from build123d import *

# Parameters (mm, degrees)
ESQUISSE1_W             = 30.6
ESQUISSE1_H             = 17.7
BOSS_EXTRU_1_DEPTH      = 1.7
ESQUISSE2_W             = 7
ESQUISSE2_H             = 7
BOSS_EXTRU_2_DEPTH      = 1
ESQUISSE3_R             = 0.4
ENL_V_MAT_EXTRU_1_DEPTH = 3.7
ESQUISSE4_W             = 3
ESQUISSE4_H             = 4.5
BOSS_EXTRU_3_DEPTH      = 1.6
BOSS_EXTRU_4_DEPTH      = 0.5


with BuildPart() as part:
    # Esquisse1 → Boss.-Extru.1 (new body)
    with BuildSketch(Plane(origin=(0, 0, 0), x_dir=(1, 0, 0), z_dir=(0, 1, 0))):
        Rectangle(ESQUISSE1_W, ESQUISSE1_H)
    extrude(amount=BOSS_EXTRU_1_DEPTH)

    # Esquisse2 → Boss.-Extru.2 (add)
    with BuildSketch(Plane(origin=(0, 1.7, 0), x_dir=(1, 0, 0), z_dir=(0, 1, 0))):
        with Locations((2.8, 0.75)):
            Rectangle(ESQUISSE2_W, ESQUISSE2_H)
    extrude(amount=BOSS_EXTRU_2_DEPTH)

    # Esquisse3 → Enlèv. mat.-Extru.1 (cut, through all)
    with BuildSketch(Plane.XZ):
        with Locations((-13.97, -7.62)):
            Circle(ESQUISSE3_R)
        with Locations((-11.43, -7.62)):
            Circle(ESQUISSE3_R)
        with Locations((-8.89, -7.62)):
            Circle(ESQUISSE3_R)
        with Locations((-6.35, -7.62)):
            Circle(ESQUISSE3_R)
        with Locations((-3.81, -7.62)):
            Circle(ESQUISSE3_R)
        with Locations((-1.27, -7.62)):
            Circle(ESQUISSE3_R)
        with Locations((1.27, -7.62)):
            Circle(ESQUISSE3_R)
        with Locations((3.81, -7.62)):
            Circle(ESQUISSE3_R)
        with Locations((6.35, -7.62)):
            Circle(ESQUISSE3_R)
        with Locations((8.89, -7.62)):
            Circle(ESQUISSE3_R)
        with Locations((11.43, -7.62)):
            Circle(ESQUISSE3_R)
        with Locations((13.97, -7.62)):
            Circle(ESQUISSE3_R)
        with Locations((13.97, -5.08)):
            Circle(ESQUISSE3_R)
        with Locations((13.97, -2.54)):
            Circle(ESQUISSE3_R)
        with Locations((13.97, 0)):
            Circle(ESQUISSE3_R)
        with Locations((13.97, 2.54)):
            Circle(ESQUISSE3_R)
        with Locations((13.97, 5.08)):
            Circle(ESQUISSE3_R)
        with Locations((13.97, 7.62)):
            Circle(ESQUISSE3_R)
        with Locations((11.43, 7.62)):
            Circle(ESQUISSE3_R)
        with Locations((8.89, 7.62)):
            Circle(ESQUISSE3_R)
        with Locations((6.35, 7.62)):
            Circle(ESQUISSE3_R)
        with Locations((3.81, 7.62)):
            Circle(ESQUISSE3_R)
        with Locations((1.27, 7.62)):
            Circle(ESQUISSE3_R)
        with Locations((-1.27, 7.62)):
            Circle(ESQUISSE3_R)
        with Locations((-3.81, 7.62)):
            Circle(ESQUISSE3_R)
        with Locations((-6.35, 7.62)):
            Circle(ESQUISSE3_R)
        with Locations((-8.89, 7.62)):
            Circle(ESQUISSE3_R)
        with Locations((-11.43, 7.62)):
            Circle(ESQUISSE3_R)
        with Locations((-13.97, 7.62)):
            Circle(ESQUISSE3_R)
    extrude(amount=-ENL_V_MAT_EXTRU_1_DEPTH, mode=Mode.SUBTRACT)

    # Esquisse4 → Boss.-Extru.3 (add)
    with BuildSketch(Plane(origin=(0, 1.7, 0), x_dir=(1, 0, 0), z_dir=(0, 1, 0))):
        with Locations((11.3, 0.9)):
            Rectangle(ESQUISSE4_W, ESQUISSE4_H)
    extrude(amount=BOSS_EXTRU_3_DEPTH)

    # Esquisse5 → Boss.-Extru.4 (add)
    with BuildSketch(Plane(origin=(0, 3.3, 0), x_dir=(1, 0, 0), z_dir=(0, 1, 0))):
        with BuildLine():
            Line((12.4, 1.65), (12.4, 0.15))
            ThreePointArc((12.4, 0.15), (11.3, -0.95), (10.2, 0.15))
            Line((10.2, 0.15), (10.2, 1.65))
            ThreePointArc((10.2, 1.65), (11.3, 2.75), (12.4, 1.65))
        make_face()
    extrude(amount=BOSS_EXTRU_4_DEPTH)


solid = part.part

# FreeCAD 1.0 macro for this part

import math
import FreeCAD as App
import Part
import Sketcher
from FreeCAD import Vector
Q = App.Units.Quantity


def add_polygon(sketch, points):
    """Adds a closed chain of lines whose ends are joined by coincident constraints."""
    first, n = sketch.GeometryCount, len(points)
    for a, b in zip(points, points[1:] + points[:1]):
        sketch.addGeometry(Part.LineSegment(App.Vector(*a, 0), App.Vector(*b, 0)), False)
    for i in range(n):
        sketch.addConstraint(Sketcher.Constraint("Coincident", first + i, 2, first + (i + 1) % n, 1))

doc = App.newDocument("Part")
body = doc.addObject("PartDesign::Body", "Body")

# Sketch on XZ plane
sketch1 = body.newObject("Sketcher::SketchObject", "Sketch")
sketch1.AttachmentSupport = (doc.getObject("XZ_Plane"), [""])
sketch1.MapMode = "FlatFace"
add_polygon(sketch1, [(-15.3, -8.85), (-15.3, 8.85), (15.3, 8.85), (15.3, -8.85)])  # lines 0-3
sketch1.addConstraint(Sketcher.Constraint("Vertical", 0))
sketch1.addConstraint(Sketcher.Constraint("Horizontal", 1))
sketch1.addConstraint(Sketcher.Constraint("Vertical", 2))
sketch1.addConstraint(Sketcher.Constraint("Horizontal", 3))
sketch1.addConstraint(Sketcher.Constraint("Symmetric", 0, 2, 2, 2, -1, 1))
sketch1.addConstraint(Sketcher.Constraint("DistanceX", 1, 1, 1, 2, Q("30.6 mm")))
sketch1.addConstraint(Sketcher.Constraint("DistanceY", 0, 1, 0, 2, Q("17.7 mm")))
pad1 = body.newObject("PartDesign::Pad", "Pad")
pad1.Profile = sketch1
pad1.Length = 1.7
pad1.Reversed = True

# Sketch on XZ plane
sketch2 = body.newObject("Sketcher::SketchObject", "Sketch001")
sketch2.AttachmentSupport = (doc.getObject("XZ_Plane"), [""])
sketch2.MapMode = "FlatFace"
sketch2.AttachmentOffset = App.Placement(Vector(0, 0, -1.7), App.Rotation())
add_polygon(sketch2, [(-0.7, -4.25), (-0.7, 2.75), (6.3, 2.75), (6.3, -4.25)])  # lines 0-3
sketch2.addConstraint(Sketcher.Constraint("Vertical", 0))
sketch2.addConstraint(Sketcher.Constraint("Horizontal", 1))
sketch2.addConstraint(Sketcher.Constraint("Vertical", 2))
sketch2.addConstraint(Sketcher.Constraint("Horizontal", 3))
sketch2.addConstraint(Sketcher.Constraint("Equal", 3, 0))
sketch2.addConstraint(Sketcher.Constraint("DistanceX", 1, 1, 1, 2, Q("7 mm")))
sketch2.addConstraint(Sketcher.Constraint("DistanceX", 0, 2, -1, 1, Q("0.7 mm")))
sketch2.addConstraint(Sketcher.Constraint("DistanceY", -1, 1, 0, 2, Q("2.75 mm")))
pad2 = body.newObject("PartDesign::Pad", "Pad001")
pad2.Profile = sketch2
pad2.Length = 1
pad2.Reversed = True

# Sketch on XZ plane
sketch3 = body.newObject("Sketcher::SketchObject", "Sketch002")
sketch3.AttachmentSupport = (doc.getObject("XZ_Plane"), [""])
sketch3.MapMode = "FlatFace"
sketch3.addGeometry(Part.Circle(Vector(-13.97, -7.62, 0), Vector(0, 0, 1), 0.4), False)
sketch3.addGeometry(Part.Circle(Vector(-11.43, -7.62, 0), Vector(0, 0, 1), 0.4), False)
sketch3.addGeometry(Part.Circle(Vector(-8.89, -7.62, 0), Vector(0, 0, 1), 0.4), False)
sketch3.addGeometry(Part.Circle(Vector(-6.35, -7.62, 0), Vector(0, 0, 1), 0.4), False)
sketch3.addGeometry(Part.Circle(Vector(-3.81, -7.62, 0), Vector(0, 0, 1), 0.4), False)
sketch3.addGeometry(Part.Circle(Vector(-1.27, -7.62, 0), Vector(0, 0, 1), 0.4), False)
sketch3.addGeometry(Part.Circle(Vector(1.27, -7.62, 0), Vector(0, 0, 1), 0.4), False)
sketch3.addGeometry(Part.Circle(Vector(3.81, -7.62, 0), Vector(0, 0, 1), 0.4), False)
sketch3.addGeometry(Part.Circle(Vector(6.35, -7.62, 0), Vector(0, 0, 1), 0.4), False)
sketch3.addGeometry(Part.Circle(Vector(8.89, -7.62, 0), Vector(0, 0, 1), 0.4), False)
sketch3.addGeometry(Part.Circle(Vector(11.43, -7.62, 0), Vector(0, 0, 1), 0.4), False)
sketch3.addGeometry(Part.Circle(Vector(13.97, -7.62, 0), Vector(0, 0, 1), 0.4), False)
sketch3.addGeometry(Part.Circle(Vector(13.97, -5.08, 0), Vector(0, 0, 1), 0.4), False)
sketch3.addGeometry(Part.Circle(Vector(13.97, -2.54, 0), Vector(0, 0, 1), 0.4), False)
sketch3.addGeometry(Part.Circle(Vector(13.97, 0, 0), Vector(0, 0, 1), 0.4), False)
sketch3.addGeometry(Part.Circle(Vector(13.97, 2.54, 0), Vector(0, 0, 1), 0.4), False)
sketch3.addGeometry(Part.Circle(Vector(13.97, 5.08, 0), Vector(0, 0, 1), 0.4), False)
sketch3.addGeometry(Part.Circle(Vector(13.97, 7.62, 0), Vector(0, 0, 1), 0.4), False)
sketch3.addGeometry(Part.Circle(Vector(11.43, 7.62, 0), Vector(0, 0, 1), 0.4), False)
sketch3.addGeometry(Part.Circle(Vector(8.89, 7.62, 0), Vector(0, 0, 1), 0.4), False)
sketch3.addGeometry(Part.Circle(Vector(6.35, 7.62, 0), Vector(0, 0, 1), 0.4), False)
sketch3.addGeometry(Part.Circle(Vector(3.81, 7.62, 0), Vector(0, 0, 1), 0.4), False)
sketch3.addGeometry(Part.Circle(Vector(1.27, 7.62, 0), Vector(0, 0, 1), 0.4), False)
sketch3.addGeometry(Part.Circle(Vector(-1.27, 7.62, 0), Vector(0, 0, 1), 0.4), False)
sketch3.addGeometry(Part.Circle(Vector(-3.81, 7.62, 0), Vector(0, 0, 1), 0.4), False)
sketch3.addGeometry(Part.Circle(Vector(-6.35, 7.62, 0), Vector(0, 0, 1), 0.4), False)
sketch3.addGeometry(Part.Circle(Vector(-8.89, 7.62, 0), Vector(0, 0, 1), 0.4), False)
sketch3.addGeometry(Part.Circle(Vector(-11.43, 7.62, 0), Vector(0, 0, 1), 0.4), False)
sketch3.addGeometry(Part.Circle(Vector(-13.97, 7.62, 0), Vector(0, 0, 1), 0.4), False)
sketch3.addConstraint(Sketcher.Constraint("Equal", 0, 1))
sketch3.addConstraint(Sketcher.Constraint("Equal", 1, 2))
sketch3.addConstraint(Sketcher.Constraint("Equal", 2, 3))
sketch3.addConstraint(Sketcher.Constraint("Equal", 3, 4))
sketch3.addConstraint(Sketcher.Constraint("Equal", 4, 5))
sketch3.addConstraint(Sketcher.Constraint("Equal", 5, 6))
sketch3.addConstraint(Sketcher.Constraint("Equal", 6, 7))
sketch3.addConstraint(Sketcher.Constraint("Equal", 7, 8))
sketch3.addConstraint(Sketcher.Constraint("Equal", 8, 9))
sketch3.addConstraint(Sketcher.Constraint("Equal", 9, 10))
sketch3.addConstraint(Sketcher.Constraint("Equal", 10, 11))
sketch3.addConstraint(Sketcher.Constraint("Equal", 11, 12))
sketch3.addConstraint(Sketcher.Constraint("Equal", 12, 13))
sketch3.addConstraint(Sketcher.Constraint("Equal", 13, 14))
sketch3.addConstraint(Sketcher.Constraint("Equal", 14, 15))
sketch3.addConstraint(Sketcher.Constraint("Equal", 15, 16))
sketch3.addConstraint(Sketcher.Constraint("Equal", 16, 17))
sketch3.addConstraint(Sketcher.Constraint("Equal", 17, 18))
sketch3.addConstraint(Sketcher.Constraint("Equal", 18, 19))
sketch3.addConstraint(Sketcher.Constraint("Equal", 19, 20))
sketch3.addConstraint(Sketcher.Constraint("Equal", 20, 21))
sketch3.addConstraint(Sketcher.Constraint("Equal", 21, 22))
sketch3.addConstraint(Sketcher.Constraint("Equal", 22, 23))
sketch3.addConstraint(Sketcher.Constraint("Equal", 23, 24))
sketch3.addConstraint(Sketcher.Constraint("Equal", 24, 25))
sketch3.addConstraint(Sketcher.Constraint("Equal", 25, 26))
sketch3.addConstraint(Sketcher.Constraint("Equal", 26, 27))
sketch3.addConstraint(Sketcher.Constraint("Equal", 27, 28))
sketch3.addConstraint(Sketcher.Constraint("Symmetric", 0, 3, 17, 3, -1, 1))
sketch3.addConstraint(Sketcher.Constraint("Symmetric", 1, 3, 18, 3, -1, 1))
sketch3.addConstraint(Sketcher.Constraint("Symmetric", 2, 3, 19, 3, -1, 1))
sketch3.addConstraint(Sketcher.Constraint("Symmetric", 3, 3, 20, 3, -1, 1))
sketch3.addConstraint(Sketcher.Constraint("Symmetric", 4, 3, 21, 3, -1, 1))
sketch3.addConstraint(Sketcher.Constraint("Symmetric", 5, 3, 22, 3, -1, 1))
sketch3.addConstraint(Sketcher.Constraint("Symmetric", 6, 3, 23, 3, -1, 1))
sketch3.addConstraint(Sketcher.Constraint("Symmetric", 7, 3, 24, 3, -1, 1))
sketch3.addConstraint(Sketcher.Constraint("Symmetric", 8, 3, 25, 3, -1, 1))
sketch3.addConstraint(Sketcher.Constraint("Symmetric", 9, 3, 26, 3, -1, 1))
sketch3.addConstraint(Sketcher.Constraint("Symmetric", 10, 3, 27, 3, -1, 1))
sketch3.addConstraint(Sketcher.Constraint("Symmetric", 11, 3, 28, 3, -1, 1))
sketch3.addConstraint(Sketcher.Constraint("Symmetric", 5, 3, 6, 3, -2))
sketch3.addConstraint(Sketcher.Constraint("Symmetric", 4, 3, 7, 3, -2))
sketch3.addConstraint(Sketcher.Constraint("Symmetric", 3, 3, 8, 3, -2))
sketch3.addConstraint(Sketcher.Constraint("Symmetric", 2, 3, 9, 3, -2))
sketch3.addConstraint(Sketcher.Constraint("Symmetric", 1, 3, 10, 3, -2))
sketch3.addConstraint(Sketcher.Constraint("Symmetric", 0, 3, 11, 3, -2))
sketch3.addConstraint(Sketcher.Constraint("Symmetric", 13, 3, 15, 3, -1))
sketch3.addConstraint(Sketcher.Constraint("Symmetric", 12, 3, 16, 3, -1))
sketch3.addConstraint(Sketcher.Constraint("PointOnObject", 14, 3, -1))
sketch3.addConstraint(Sketcher.Constraint("Horizontal", 0, 3, 1, 3))
sketch3.addConstraint(Sketcher.Constraint("Horizontal", 1, 3, 2, 3))
sketch3.addConstraint(Sketcher.Constraint("Horizontal", 2, 3, 3, 3))
sketch3.addConstraint(Sketcher.Constraint("Horizontal", 3, 3, 4, 3))
sketch3.addConstraint(Sketcher.Constraint("Horizontal", 4, 3, 5, 3))
sketch3.addConstraint(Sketcher.Constraint("Vertical", 11, 3, 12, 3))
sketch3.addConstraint(Sketcher.Constraint("Vertical", 12, 3, 13, 3))
sketch3.addConstraint(Sketcher.Constraint("Vertical", 13, 3, 14, 3))
sketch3.addConstraint(Sketcher.Constraint("Diameter", 0, Q("0.8 mm")))
sketch3.addConstraint(Sketcher.Constraint("DistanceX", 0, 3, 5, 3, Q("12.7 mm")))
sketch3.addConstraint(Sketcher.Constraint("DistanceX", 1, 3, 6, 3, Q("12.7 mm")))
sketch3.addConstraint(Sketcher.Constraint("DistanceX", 2, 3, 7, 3, Q("12.7 mm")))
sketch3.addConstraint(Sketcher.Constraint("DistanceX", 3, 3, 8, 3, Q("12.7 mm")))
sketch3.addConstraint(Sketcher.Constraint("DistanceY", 11, 3, 16, 3, Q("12.7 mm")))
sketch3.addConstraint(Sketcher.Constraint("DistanceX", 0, 3, -1, 1, Q("13.97 mm")))
sketch3.addConstraint(Sketcher.Constraint("DistanceY", 0, 3, -1, 1, Q("7.62 mm")))
sketch3.addConstraint(Sketcher.Constraint("DistanceX", 2, 3, -1, 1, Q("8.89 mm")))
sketch3.addConstraint(Sketcher.Constraint("DistanceY", 13, 3, -1, 1, Q("2.54 mm")))
pocket1 = body.newObject("PartDesign::Pocket", "Pocket")
pocket1.Profile = sketch3
pocket1.Type = "ThroughAll"

# Sketch on XZ plane
sketch4 = body.newObject("Sketcher::SketchObject", "Sketch003")
sketch4.AttachmentSupport = (doc.getObject("XZ_Plane"), [""])
sketch4.MapMode = "FlatFace"
sketch4.AttachmentOffset = App.Placement(Vector(0, 0, -1.7), App.Rotation())
add_polygon(sketch4, [(9.8, -3.15), (9.8, 1.35), (12.8, 1.35), (12.8, -3.15)])  # lines 0-3
sketch4.addConstraint(Sketcher.Constraint("Vertical", 0))
sketch4.addConstraint(Sketcher.Constraint("Horizontal", 1))
sketch4.addConstraint(Sketcher.Constraint("Vertical", 2))
sketch4.addConstraint(Sketcher.Constraint("Horizontal", 3))
sketch4.addConstraint(Sketcher.Constraint("DistanceX", 1, 1, 1, 2, Q("3 mm")))
sketch4.addConstraint(Sketcher.Constraint("DistanceY", 0, 1, 0, 2, Q("4.5 mm")))
sketch4.addConstraint(Sketcher.Constraint("DistanceX", -1, 1, 0, 2, Q("9.8 mm")))
sketch4.addConstraint(Sketcher.Constraint("DistanceY", -1, 1, 0, 2, Q("1.35 mm")))
pad3 = body.newObject("PartDesign::Pad", "Pad002")
pad3.Profile = sketch4
pad3.Length = 1.6
pad3.Reversed = True

# Sketch on XZ plane
sketch5 = body.newObject("Sketcher::SketchObject", "Sketch004")
sketch5.AttachmentSupport = (doc.getObject("XZ_Plane"), [""])
sketch5.MapMode = "FlatFace"
sketch5.AttachmentOffset = App.Placement(Vector(0, 0, -3.3), App.Rotation())
sketch5.addGeometry(Part.LineSegment(Vector(12.4, -0.15, 0), Vector(12.4, -1.65, 0)), False)
sketch5.addGeometry(Part.ArcOfCircle(Part.Circle(Vector(11.3, -1.65, 0), Vector(0, 0, 1), 1.1), math.radians(180), math.radians(360)), False)
sketch5.addGeometry(Part.LineSegment(Vector(10.2, -1.65, 0), Vector(10.2, -0.15, 0)), False)
sketch5.addGeometry(Part.ArcOfCircle(Part.Circle(Vector(11.3, -0.15, 0), Vector(0, 0, 1), 1.1), math.radians(0), math.radians(180)), False)
sketch5.addConstraint(Sketcher.Constraint("Tangent", 0, 2, 1, 2))
sketch5.addConstraint(Sketcher.Constraint("Tangent", 1, 1, 2, 1))
sketch5.addConstraint(Sketcher.Constraint("Tangent", 2, 2, 3, 2))
sketch5.addConstraint(Sketcher.Constraint("Tangent", 3, 1, 0, 1))
sketch5.addConstraint(Sketcher.Constraint("Vertical", 0))
sketch5.addConstraint(Sketcher.Constraint("Vertical", 2))
sketch5.addConstraint(Sketcher.Constraint("Radius", 1, Q("1.1 mm")))
sketch5.addConstraint(Sketcher.Constraint("DistanceY", 0, 2, 0, 1, Q("1.5 mm")))
sketch5.addConstraint(Sketcher.Constraint("DistanceX", -1, 1, 1, 3, Q("11.3 mm")))
sketch5.addConstraint(Sketcher.Constraint("DistanceY", 1, 3, -1, 1, Q("1.65 mm")))
pad4 = body.newObject("PartDesign::Pad", "Pad003")
pad4.Profile = sketch5
pad4.Length = 0.5
pad4.Reversed = True

doc.recompute()
